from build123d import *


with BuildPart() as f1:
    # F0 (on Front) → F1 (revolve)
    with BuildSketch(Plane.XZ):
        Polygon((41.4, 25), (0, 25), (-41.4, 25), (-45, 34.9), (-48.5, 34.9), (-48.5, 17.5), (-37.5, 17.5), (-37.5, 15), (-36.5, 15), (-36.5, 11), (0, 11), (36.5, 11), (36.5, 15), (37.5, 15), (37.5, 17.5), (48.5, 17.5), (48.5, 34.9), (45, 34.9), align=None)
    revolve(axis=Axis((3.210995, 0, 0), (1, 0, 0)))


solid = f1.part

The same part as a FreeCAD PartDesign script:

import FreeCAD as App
import Part
import Sketcher
from FreeCAD import Vector

doc = App.newDocument("Part")
params = doc.addObject("Spreadsheet::Sheet", "Params")
for row, (alias, value) in enumerate([
    ("sketch1_width", "11 mm"),
    ("sketch1_width2", "1 mm"),
    ("sketch1_width3", "73 mm"),
    ("sketch1_height", "4 mm"),
    ("sketch1_width4", "82.8 mm"),
    ("revolution_angle", "360 deg"),
], start=1):
    params.set(f"A{row}", alias)
    params.set(f"B{row}", "=" + value)
    params.setAlias(f"B{row}", alias)

body = doc.addObject("PartDesign::Body", "Body")

# Sketch on XZ plane
sketch1 = body.newObject("Sketcher::SketchObject", "Sketch")
sketch1.AttachmentSupport = (doc.getObject("XZ_Plane"), [""])
sketch1.MapMode = "FlatFace"
sketch1.addGeometry(Part.LineSegment(Vector(41.4, 25, 0), Vector(-41.4, 25, 0)), False)
sketch1.addGeometry(Part.LineSegment(Vector(-41.4, 25, 0), Vector(-45, 34.9, 0)), False)
sketch1.addGeometry(Part.LineSegment(Vector(-45, 34.9, 0), Vector(-48.5, 34.9, 0)), False)
sketch1.addGeometry(Part.LineSegment(Vector(-48.5, 34.9, 0), Vector(-48.5, 17.5, 0)), False)
sketch1.addGeometry(Part.LineSegment(Vector(-48.5, 17.5, 0), Vector(-37.5, 17.5, 0)), False)
sketch1.addGeometry(Part.LineSegment(Vector(-37.5, 17.5, 0), Vector(-37.5, 15, 0)), False)
sketch1.addGeometry(Part.LineSegment(Vector(-37.5, 15, 0), Vector(-36.5, 15, 0)), False)
sketch1.addGeometry(Part.LineSegment(Vector(-36.5, 15, 0), Vector(-36.5, 11, 0)), False)
sketch1.addGeometry(Part.LineSegment(Vector(-36.5, 11, 0), Vector(36.5, 11, 0)), False)
sketch1.addGeometry(Part.LineSegment(Vector(36.5, 11, 0), Vector(36.5, 15, 0)), False)
sketch1.addGeometry(Part.LineSegment(Vector(36.5, 15, 0), Vector(37.5, 15, 0)), False)
sketch1.addGeometry(Part.LineSegment(Vector(37.5, 15, 0), Vector(37.5, 17.5, 0)), False)
sketch1.addGeometry(Part.LineSegment(Vector(37.5, 17.5, 0), Vector(48.5, 17.5, 0)), False)
sketch1.addGeometry(Part.LineSegment(Vector(48.5, 17.5, 0), Vector(48.5, 34.9, 0)), False)
sketch1.addGeometry(Part.LineSegment(Vector(48.5, 34.9, 0), Vector(45, 34.9, 0)), False)
sketch1.addGeometry(Part.LineSegment(Vector(45, 34.9, 0), Vector(41.4, 25, 0)), False)
sketch1.addConstraint(Sketcher.Constraint("Coincident", 0, 2, 1, 1))
sketch1.addConstraint(Sketcher.Constraint("Coincident", 1, 2, 2, 1))
sketch1.addConstraint(Sketcher.Constraint("Coincident", 2, 2, 3, 1))
sketch1.addConstraint(Sketcher.Constraint("Coincident", 3, 2, 4, 1))
sketch1.addConstraint(Sketcher.Constraint("Coincident", 4, 2, 5, 1))
sketch1.addConstraint(Sketcher.Constraint("Coincident", 5, 2, 6, 1))
sketch1.addConstraint(Sketcher.Constraint("Coincident", 6, 2, 7, 1))
sketch1.addConstraint(Sketcher.Constraint("Coincident", 7, 2, 8, 1))
sketch1.addConstraint(Sketcher.Constraint("Coincident", 8, 2, 9, 1))
sketch1.addConstraint(Sketcher.Constraint("Coincident", 9, 2, 10, 1))
sketch1.addConstraint(Sketcher.Constraint("Coincident", 10, 2, 11, 1))
sketch1.addConstraint(Sketcher.Constraint("Coincident", 11, 2, 12, 1))
sketch1.addConstraint(Sketcher.Constraint("Coincident", 12, 2, 13, 1))
sketch1.addConstraint(Sketcher.Constraint("Coincident", 13, 2, 14, 1))
sketch1.addConstraint(Sketcher.Constraint("Coincident", 14, 2, 15, 1))
sketch1.addConstraint(Sketcher.Constraint("Coincident", 15, 2, 0, 1))
sketch1.addConstraint(Sketcher.Constraint("Horizontal", 0))
sketch1.addConstraint(Sketcher.Constraint("Horizontal", 2))
sketch1.addConstraint(Sketcher.Constraint("Vertical", 3))
sketch1.addConstraint(Sketcher.Constraint("Horizontal", 4))
sketch1.addConstraint(Sketcher.Constraint("Vertical", 5))
sketch1.addConstraint(Sketcher.Constraint("Horizontal", 6))
sketch1.addConstraint(Sketcher.Constraint("Vertical", 7))
sketch1.addConstraint(Sketcher.Constraint("Horizontal", 8))
sketch1.addConstraint(Sketcher.Constraint("Vertical", 9))
sketch1.addConstraint(Sketcher.Constraint("Horizontal", 10))
sketch1.addConstraint(Sketcher.Constraint("Vertical", 11))
sketch1.addConstraint(Sketcher.Constraint("Horizontal", 12))
sketch1.addConstraint(Sketcher.Constraint("Vertical", 13))
sketch1.addConstraint(Sketcher.Constraint("Horizontal", 14))
sketch1.addConstraint(Sketcher.Constraint("Symmetric", 6, 2, 9, 2, -2))
sketch1.addConstraint(Sketcher.Constraint("Symmetric", 4, 2, 11, 2, -2))
sketch1.addConstraint(Sketcher.Constraint("Symmetric", 2, 2, 13, 2, -2))
sketch1.addConstraint(Sketcher.Constraint("Equal", 2, 14))
sketch1.addConstraint(Sketcher.Constraint("Equal", 1, 15))
sketch1.addConstraint(Sketcher.Constraint("DistanceX", 4, 1, 4, 2, 11.0))
sketch1.addConstraint(Sketcher.Constraint("DistanceX", 6, 1, 6, 2, 1.0))
sketch1.addConstraint(Sketcher.Constraint("DistanceX", 8, 1, 8, 2, 73.0))
sketch1.addConstraint(Sketcher.Constraint("DistanceY", 7, 2, 7, 1, 4.0))
sketch1.addConstraint(Sketcher.Constraint("DistanceX", 0, 2, 0, 1, 82.8))
sketch1.addConstraint(Sketcher.Constraint("DistanceX", 2, 2, 2, 1, 3.5))
sketch1.addConstraint(Sketcher.Constraint("DistanceY", 3, 2, 3, 1, 17.4))
sketch1.addConstraint(Sketcher.Constraint("DistanceY", 5, 2, 5, 1, 2.5))
sketch1.addConstraint(Sketcher.Constraint("DistanceY", -1, 1, 0, 2, 25.0))
sketch1.addConstraint(Sketcher.Constraint("DistanceY", -1, 1, 5, 2, 15.0))
sketch1.setExpression("Constraints[35]", "Params.sketch1_width")
sketch1.setExpression("Constraints[36]", "Params.sketch1_width2")
sketch1.setExpression("Constraints[37]", "Params.sketch1_width3")
sketch1.setExpression("Constraints[38]", "Params.sketch1_height")
sketch1.setExpression("Constraints[39]", "Params.sketch1_width4")
revolution = body.newObject("PartDesign::Revolution", "Revolution")
revolution.Profile = sketch1
revolution.ReferenceAxis = (sketch1, ["H_Axis"])
revolution.setExpression("Angle", "Params.revolution_angle")

doc.recompute()
